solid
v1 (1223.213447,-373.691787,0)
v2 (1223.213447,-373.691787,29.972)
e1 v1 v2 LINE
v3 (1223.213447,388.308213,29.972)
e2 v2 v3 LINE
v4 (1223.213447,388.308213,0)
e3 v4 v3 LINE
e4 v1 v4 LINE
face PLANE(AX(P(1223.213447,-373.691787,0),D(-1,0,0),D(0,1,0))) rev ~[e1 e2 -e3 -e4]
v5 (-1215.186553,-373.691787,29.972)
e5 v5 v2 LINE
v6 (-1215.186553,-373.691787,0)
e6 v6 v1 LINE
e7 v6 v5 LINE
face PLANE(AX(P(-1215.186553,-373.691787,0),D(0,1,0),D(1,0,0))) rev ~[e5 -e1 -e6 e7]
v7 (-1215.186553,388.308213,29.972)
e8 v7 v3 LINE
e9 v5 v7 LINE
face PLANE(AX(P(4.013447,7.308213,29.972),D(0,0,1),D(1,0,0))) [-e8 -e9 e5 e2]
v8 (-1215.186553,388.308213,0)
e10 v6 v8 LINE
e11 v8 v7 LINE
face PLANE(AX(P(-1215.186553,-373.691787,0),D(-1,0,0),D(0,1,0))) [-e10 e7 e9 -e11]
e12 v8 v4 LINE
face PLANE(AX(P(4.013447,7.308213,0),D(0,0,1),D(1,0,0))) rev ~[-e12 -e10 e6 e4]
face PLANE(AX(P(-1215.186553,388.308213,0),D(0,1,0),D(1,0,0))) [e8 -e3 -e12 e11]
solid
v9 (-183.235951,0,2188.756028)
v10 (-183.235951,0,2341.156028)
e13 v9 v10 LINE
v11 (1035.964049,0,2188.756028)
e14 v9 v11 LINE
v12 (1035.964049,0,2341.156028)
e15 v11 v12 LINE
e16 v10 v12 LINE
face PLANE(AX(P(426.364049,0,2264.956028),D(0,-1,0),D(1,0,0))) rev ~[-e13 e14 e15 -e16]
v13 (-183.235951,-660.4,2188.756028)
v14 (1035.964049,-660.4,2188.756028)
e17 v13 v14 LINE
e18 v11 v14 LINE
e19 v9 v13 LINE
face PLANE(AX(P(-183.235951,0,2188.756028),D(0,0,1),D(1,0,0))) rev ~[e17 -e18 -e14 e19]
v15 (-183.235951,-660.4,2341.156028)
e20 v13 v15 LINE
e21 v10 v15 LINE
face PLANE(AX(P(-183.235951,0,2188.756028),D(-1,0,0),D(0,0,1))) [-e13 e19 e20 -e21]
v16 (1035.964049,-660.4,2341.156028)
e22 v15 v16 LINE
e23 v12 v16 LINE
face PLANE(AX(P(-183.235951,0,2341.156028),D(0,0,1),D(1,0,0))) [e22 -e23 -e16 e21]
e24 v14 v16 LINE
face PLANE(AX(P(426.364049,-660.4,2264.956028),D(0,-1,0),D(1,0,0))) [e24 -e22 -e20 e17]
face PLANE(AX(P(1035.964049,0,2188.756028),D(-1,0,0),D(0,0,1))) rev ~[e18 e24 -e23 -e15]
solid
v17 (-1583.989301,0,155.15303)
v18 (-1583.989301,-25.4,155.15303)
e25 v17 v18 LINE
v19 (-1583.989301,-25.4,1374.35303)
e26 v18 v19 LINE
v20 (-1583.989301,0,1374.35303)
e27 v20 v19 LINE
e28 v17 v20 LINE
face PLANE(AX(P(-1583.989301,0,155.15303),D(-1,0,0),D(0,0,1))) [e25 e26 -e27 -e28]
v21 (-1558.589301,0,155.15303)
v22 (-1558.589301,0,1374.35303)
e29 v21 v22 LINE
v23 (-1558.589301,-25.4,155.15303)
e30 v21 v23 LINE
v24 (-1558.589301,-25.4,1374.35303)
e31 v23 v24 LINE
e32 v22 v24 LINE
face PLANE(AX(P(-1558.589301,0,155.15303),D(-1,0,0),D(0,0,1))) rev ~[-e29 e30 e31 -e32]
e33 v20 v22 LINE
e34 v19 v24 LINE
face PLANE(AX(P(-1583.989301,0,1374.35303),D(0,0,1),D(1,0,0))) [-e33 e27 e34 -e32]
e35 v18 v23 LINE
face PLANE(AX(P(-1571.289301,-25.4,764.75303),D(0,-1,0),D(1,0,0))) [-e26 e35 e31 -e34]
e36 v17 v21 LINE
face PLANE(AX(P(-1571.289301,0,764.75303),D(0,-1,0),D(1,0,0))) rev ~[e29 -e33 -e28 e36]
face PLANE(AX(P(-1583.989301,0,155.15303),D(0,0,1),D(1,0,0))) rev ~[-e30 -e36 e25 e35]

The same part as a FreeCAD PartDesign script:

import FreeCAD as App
import Part
import Sketcher
Q = App.Units.Quantity


def add_polygon(sketch, points):
    """Adds a closed chain of lines whose ends are joined by coincident constraints."""
    first, n = sketch.GeometryCount, len(points)
    for a, b in zip(points, points[1:] + points[:1]):
        sketch.addGeometry(Part.LineSegment(App.Vector(*a, 0), App.Vector(*b, 0)), False)
    for i in range(n):
        sketch.addConstraint(Sketcher.Constraint("Coincident", first + i, 2, first + (i + 1) % n, 1))

doc = App.newDocument("Part")
body = doc.addObject("PartDesign::Body", "Body")

# Sketch on XY plane
sketch1 = doc.addObject("Sketcher::SketchObject", "Sketch")
body.addObject(sketch1)
sketch1.AttachmentSupport = (doc.XY_Plane, [""])
sketch1.MapMode = "FlatFace"
add_polygon(sketch1, [(-1215, 388), (-1215, -374), (1223, -374), (1223, 388)])  # lines 0-3
sketch1.addConstraint([
    Sketcher.Constraint("Vertical", 0),
    Sketcher.Constraint("Horizontal", 1),
    Sketcher.Constraint("Vertical", 2),
    Sketcher.Constraint("Horizontal", 3),
    Sketcher.Constraint("DistanceX", 1, 1, 1, 2, Q("96 in")),
    Sketcher.Constraint("DistanceY", 0, 2, 0, 1, Q("30 in")),
    Sketcher.Constraint("DistanceX", 0, 2, -1, 1, Q("1215.186553 mm")),
    Sketcher.Constraint("DistanceY", 0, 2, -1, 1, Q("373.691787 mm")),
])
pad1 = doc.addObject("PartDesign::Pad", "Pad")
body.addObject(pad1)
pad1.Profile = sketch1
pad1.Length = Q("1.18 in")
body2 = doc.addObject("PartDesign::Body", "Body001")

# Sketch on XZ plane
sketch2 = doc.addObject("Sketcher::SketchObject", "Sketch001")
body2.addObject(sketch2)
sketch2.AttachmentSupport = (doc.getObject("XZ_Plane001"), [""])
sketch2.MapMode = "FlatFace"
add_polygon(sketch2, [(-1769, 446), (-1769, 0), (-1615, 0), (-1615, 446)])  # lines 0-3
sketch2.addConstraint([
    Sketcher.Constraint("Vertical", 0),
    Sketcher.Constraint("Horizontal", 1),
    Sketcher.Constraint("Vertical", 2),
    Sketcher.Constraint("Horizontal", 3),
    Sketcher.Constraint("PointOnObject", 0, 2, -1),
    Sketcher.Constraint("DistanceX", 1, 1, 1, 2, Q("153.752804 mm")),
    Sketcher.Constraint("DistanceY", 0, 2, 0, 1, Q("446.217656 mm")),
    Sketcher.Constraint("DistanceX", 1, 2, -1, 1, Q("1615.405679 mm")),
])
pad2 = doc.addObject("PartDesign::Pad", "Pad001")
body2.addObject(pad2)
pad2.Profile = sketch2
pad2.Length = Q("1 in")
body3 = doc.addObject("PartDesign::Body", "Body002")

# Sketch on XZ plane
sketch3 = doc.addObject("Sketcher::SketchObject", "Sketch002")
body3.addObject(sketch3)
sketch3.AttachmentSupport = (doc.getObject("XZ_Plane002"), [""])
sketch3.MapMode = "FlatFace"
add_polygon(sketch3, [(-1584, 1374), (-1584, 155), (-1559, 155), (-1559, 1374)])  # lines 0-3
sketch3.addConstraint([
    Sketcher.Constraint("Vertical", 0),
    Sketcher.Constraint("Horizontal", 1),
    Sketcher.Constraint("Vertical", 2),
    Sketcher.Constraint("Horizontal", 3),
    Sketcher.Constraint("DistanceX", 1, 1, 1, 2, Q("1 in")),
    Sketcher.Constraint("DistanceY", 0, 2, 0, 1, Q("48 in")),
    Sketcher.Constraint("DistanceX", 0, 2, -1, 1, Q("1583.989301 mm")),
    Sketcher.Constraint("DistanceY", -1, 1, 0, 2, Q("155.15303 mm")),
])
pad3 = doc.addObject("PartDesign::Pad", "Pad002")
body3.addObject(pad3)
pad3.Profile = sketch3
pad3.Length = Q("1 in")
body4 = doc.addObject("PartDesign::Body", "Body003")

# Sketch on XZ plane
sketch4 = doc.addObject("Sketcher::SketchObject", "Sketch003")
body4.addObject(sketch4)
sketch4.AttachmentSupport = (doc.getObject("XZ_Plane003"), [""])
sketch4.MapMode = "FlatFace"
add_polygon(sketch4, [(-183, 2341), (-183, 2189), (1036, 2189), (1036, 2341)])  # lines 0-3
sketch4.addConstraint([
    Sketcher.Constraint("Vertical", 0),
    Sketcher.Constraint("Horizontal", 1),
    Sketcher.Constraint("Vertical", 2),
    Sketcher.Constraint("Horizontal", 3),
    Sketcher.Constraint("DistanceX", 1, 1, 1, 2, Q("48 in")),
    Sketcher.Constraint("DistanceY", 0, 2, 0, 1, Q("6 in")),
    Sketcher.Constraint("DistanceX", 0, 2, -1, 1, Q("183.235951 mm")),
    Sketcher.Constraint("DistanceY", -1, 1, 0, 2, Q("2188.756028 mm")),
])
pad4 = doc.addObject("PartDesign::Pad", "Pad003")
body4.addObject(pad4)
pad4.Profile = sketch4
pad4.Length = Q("26 in")
body2.Visibility = False

doc.recompute()
